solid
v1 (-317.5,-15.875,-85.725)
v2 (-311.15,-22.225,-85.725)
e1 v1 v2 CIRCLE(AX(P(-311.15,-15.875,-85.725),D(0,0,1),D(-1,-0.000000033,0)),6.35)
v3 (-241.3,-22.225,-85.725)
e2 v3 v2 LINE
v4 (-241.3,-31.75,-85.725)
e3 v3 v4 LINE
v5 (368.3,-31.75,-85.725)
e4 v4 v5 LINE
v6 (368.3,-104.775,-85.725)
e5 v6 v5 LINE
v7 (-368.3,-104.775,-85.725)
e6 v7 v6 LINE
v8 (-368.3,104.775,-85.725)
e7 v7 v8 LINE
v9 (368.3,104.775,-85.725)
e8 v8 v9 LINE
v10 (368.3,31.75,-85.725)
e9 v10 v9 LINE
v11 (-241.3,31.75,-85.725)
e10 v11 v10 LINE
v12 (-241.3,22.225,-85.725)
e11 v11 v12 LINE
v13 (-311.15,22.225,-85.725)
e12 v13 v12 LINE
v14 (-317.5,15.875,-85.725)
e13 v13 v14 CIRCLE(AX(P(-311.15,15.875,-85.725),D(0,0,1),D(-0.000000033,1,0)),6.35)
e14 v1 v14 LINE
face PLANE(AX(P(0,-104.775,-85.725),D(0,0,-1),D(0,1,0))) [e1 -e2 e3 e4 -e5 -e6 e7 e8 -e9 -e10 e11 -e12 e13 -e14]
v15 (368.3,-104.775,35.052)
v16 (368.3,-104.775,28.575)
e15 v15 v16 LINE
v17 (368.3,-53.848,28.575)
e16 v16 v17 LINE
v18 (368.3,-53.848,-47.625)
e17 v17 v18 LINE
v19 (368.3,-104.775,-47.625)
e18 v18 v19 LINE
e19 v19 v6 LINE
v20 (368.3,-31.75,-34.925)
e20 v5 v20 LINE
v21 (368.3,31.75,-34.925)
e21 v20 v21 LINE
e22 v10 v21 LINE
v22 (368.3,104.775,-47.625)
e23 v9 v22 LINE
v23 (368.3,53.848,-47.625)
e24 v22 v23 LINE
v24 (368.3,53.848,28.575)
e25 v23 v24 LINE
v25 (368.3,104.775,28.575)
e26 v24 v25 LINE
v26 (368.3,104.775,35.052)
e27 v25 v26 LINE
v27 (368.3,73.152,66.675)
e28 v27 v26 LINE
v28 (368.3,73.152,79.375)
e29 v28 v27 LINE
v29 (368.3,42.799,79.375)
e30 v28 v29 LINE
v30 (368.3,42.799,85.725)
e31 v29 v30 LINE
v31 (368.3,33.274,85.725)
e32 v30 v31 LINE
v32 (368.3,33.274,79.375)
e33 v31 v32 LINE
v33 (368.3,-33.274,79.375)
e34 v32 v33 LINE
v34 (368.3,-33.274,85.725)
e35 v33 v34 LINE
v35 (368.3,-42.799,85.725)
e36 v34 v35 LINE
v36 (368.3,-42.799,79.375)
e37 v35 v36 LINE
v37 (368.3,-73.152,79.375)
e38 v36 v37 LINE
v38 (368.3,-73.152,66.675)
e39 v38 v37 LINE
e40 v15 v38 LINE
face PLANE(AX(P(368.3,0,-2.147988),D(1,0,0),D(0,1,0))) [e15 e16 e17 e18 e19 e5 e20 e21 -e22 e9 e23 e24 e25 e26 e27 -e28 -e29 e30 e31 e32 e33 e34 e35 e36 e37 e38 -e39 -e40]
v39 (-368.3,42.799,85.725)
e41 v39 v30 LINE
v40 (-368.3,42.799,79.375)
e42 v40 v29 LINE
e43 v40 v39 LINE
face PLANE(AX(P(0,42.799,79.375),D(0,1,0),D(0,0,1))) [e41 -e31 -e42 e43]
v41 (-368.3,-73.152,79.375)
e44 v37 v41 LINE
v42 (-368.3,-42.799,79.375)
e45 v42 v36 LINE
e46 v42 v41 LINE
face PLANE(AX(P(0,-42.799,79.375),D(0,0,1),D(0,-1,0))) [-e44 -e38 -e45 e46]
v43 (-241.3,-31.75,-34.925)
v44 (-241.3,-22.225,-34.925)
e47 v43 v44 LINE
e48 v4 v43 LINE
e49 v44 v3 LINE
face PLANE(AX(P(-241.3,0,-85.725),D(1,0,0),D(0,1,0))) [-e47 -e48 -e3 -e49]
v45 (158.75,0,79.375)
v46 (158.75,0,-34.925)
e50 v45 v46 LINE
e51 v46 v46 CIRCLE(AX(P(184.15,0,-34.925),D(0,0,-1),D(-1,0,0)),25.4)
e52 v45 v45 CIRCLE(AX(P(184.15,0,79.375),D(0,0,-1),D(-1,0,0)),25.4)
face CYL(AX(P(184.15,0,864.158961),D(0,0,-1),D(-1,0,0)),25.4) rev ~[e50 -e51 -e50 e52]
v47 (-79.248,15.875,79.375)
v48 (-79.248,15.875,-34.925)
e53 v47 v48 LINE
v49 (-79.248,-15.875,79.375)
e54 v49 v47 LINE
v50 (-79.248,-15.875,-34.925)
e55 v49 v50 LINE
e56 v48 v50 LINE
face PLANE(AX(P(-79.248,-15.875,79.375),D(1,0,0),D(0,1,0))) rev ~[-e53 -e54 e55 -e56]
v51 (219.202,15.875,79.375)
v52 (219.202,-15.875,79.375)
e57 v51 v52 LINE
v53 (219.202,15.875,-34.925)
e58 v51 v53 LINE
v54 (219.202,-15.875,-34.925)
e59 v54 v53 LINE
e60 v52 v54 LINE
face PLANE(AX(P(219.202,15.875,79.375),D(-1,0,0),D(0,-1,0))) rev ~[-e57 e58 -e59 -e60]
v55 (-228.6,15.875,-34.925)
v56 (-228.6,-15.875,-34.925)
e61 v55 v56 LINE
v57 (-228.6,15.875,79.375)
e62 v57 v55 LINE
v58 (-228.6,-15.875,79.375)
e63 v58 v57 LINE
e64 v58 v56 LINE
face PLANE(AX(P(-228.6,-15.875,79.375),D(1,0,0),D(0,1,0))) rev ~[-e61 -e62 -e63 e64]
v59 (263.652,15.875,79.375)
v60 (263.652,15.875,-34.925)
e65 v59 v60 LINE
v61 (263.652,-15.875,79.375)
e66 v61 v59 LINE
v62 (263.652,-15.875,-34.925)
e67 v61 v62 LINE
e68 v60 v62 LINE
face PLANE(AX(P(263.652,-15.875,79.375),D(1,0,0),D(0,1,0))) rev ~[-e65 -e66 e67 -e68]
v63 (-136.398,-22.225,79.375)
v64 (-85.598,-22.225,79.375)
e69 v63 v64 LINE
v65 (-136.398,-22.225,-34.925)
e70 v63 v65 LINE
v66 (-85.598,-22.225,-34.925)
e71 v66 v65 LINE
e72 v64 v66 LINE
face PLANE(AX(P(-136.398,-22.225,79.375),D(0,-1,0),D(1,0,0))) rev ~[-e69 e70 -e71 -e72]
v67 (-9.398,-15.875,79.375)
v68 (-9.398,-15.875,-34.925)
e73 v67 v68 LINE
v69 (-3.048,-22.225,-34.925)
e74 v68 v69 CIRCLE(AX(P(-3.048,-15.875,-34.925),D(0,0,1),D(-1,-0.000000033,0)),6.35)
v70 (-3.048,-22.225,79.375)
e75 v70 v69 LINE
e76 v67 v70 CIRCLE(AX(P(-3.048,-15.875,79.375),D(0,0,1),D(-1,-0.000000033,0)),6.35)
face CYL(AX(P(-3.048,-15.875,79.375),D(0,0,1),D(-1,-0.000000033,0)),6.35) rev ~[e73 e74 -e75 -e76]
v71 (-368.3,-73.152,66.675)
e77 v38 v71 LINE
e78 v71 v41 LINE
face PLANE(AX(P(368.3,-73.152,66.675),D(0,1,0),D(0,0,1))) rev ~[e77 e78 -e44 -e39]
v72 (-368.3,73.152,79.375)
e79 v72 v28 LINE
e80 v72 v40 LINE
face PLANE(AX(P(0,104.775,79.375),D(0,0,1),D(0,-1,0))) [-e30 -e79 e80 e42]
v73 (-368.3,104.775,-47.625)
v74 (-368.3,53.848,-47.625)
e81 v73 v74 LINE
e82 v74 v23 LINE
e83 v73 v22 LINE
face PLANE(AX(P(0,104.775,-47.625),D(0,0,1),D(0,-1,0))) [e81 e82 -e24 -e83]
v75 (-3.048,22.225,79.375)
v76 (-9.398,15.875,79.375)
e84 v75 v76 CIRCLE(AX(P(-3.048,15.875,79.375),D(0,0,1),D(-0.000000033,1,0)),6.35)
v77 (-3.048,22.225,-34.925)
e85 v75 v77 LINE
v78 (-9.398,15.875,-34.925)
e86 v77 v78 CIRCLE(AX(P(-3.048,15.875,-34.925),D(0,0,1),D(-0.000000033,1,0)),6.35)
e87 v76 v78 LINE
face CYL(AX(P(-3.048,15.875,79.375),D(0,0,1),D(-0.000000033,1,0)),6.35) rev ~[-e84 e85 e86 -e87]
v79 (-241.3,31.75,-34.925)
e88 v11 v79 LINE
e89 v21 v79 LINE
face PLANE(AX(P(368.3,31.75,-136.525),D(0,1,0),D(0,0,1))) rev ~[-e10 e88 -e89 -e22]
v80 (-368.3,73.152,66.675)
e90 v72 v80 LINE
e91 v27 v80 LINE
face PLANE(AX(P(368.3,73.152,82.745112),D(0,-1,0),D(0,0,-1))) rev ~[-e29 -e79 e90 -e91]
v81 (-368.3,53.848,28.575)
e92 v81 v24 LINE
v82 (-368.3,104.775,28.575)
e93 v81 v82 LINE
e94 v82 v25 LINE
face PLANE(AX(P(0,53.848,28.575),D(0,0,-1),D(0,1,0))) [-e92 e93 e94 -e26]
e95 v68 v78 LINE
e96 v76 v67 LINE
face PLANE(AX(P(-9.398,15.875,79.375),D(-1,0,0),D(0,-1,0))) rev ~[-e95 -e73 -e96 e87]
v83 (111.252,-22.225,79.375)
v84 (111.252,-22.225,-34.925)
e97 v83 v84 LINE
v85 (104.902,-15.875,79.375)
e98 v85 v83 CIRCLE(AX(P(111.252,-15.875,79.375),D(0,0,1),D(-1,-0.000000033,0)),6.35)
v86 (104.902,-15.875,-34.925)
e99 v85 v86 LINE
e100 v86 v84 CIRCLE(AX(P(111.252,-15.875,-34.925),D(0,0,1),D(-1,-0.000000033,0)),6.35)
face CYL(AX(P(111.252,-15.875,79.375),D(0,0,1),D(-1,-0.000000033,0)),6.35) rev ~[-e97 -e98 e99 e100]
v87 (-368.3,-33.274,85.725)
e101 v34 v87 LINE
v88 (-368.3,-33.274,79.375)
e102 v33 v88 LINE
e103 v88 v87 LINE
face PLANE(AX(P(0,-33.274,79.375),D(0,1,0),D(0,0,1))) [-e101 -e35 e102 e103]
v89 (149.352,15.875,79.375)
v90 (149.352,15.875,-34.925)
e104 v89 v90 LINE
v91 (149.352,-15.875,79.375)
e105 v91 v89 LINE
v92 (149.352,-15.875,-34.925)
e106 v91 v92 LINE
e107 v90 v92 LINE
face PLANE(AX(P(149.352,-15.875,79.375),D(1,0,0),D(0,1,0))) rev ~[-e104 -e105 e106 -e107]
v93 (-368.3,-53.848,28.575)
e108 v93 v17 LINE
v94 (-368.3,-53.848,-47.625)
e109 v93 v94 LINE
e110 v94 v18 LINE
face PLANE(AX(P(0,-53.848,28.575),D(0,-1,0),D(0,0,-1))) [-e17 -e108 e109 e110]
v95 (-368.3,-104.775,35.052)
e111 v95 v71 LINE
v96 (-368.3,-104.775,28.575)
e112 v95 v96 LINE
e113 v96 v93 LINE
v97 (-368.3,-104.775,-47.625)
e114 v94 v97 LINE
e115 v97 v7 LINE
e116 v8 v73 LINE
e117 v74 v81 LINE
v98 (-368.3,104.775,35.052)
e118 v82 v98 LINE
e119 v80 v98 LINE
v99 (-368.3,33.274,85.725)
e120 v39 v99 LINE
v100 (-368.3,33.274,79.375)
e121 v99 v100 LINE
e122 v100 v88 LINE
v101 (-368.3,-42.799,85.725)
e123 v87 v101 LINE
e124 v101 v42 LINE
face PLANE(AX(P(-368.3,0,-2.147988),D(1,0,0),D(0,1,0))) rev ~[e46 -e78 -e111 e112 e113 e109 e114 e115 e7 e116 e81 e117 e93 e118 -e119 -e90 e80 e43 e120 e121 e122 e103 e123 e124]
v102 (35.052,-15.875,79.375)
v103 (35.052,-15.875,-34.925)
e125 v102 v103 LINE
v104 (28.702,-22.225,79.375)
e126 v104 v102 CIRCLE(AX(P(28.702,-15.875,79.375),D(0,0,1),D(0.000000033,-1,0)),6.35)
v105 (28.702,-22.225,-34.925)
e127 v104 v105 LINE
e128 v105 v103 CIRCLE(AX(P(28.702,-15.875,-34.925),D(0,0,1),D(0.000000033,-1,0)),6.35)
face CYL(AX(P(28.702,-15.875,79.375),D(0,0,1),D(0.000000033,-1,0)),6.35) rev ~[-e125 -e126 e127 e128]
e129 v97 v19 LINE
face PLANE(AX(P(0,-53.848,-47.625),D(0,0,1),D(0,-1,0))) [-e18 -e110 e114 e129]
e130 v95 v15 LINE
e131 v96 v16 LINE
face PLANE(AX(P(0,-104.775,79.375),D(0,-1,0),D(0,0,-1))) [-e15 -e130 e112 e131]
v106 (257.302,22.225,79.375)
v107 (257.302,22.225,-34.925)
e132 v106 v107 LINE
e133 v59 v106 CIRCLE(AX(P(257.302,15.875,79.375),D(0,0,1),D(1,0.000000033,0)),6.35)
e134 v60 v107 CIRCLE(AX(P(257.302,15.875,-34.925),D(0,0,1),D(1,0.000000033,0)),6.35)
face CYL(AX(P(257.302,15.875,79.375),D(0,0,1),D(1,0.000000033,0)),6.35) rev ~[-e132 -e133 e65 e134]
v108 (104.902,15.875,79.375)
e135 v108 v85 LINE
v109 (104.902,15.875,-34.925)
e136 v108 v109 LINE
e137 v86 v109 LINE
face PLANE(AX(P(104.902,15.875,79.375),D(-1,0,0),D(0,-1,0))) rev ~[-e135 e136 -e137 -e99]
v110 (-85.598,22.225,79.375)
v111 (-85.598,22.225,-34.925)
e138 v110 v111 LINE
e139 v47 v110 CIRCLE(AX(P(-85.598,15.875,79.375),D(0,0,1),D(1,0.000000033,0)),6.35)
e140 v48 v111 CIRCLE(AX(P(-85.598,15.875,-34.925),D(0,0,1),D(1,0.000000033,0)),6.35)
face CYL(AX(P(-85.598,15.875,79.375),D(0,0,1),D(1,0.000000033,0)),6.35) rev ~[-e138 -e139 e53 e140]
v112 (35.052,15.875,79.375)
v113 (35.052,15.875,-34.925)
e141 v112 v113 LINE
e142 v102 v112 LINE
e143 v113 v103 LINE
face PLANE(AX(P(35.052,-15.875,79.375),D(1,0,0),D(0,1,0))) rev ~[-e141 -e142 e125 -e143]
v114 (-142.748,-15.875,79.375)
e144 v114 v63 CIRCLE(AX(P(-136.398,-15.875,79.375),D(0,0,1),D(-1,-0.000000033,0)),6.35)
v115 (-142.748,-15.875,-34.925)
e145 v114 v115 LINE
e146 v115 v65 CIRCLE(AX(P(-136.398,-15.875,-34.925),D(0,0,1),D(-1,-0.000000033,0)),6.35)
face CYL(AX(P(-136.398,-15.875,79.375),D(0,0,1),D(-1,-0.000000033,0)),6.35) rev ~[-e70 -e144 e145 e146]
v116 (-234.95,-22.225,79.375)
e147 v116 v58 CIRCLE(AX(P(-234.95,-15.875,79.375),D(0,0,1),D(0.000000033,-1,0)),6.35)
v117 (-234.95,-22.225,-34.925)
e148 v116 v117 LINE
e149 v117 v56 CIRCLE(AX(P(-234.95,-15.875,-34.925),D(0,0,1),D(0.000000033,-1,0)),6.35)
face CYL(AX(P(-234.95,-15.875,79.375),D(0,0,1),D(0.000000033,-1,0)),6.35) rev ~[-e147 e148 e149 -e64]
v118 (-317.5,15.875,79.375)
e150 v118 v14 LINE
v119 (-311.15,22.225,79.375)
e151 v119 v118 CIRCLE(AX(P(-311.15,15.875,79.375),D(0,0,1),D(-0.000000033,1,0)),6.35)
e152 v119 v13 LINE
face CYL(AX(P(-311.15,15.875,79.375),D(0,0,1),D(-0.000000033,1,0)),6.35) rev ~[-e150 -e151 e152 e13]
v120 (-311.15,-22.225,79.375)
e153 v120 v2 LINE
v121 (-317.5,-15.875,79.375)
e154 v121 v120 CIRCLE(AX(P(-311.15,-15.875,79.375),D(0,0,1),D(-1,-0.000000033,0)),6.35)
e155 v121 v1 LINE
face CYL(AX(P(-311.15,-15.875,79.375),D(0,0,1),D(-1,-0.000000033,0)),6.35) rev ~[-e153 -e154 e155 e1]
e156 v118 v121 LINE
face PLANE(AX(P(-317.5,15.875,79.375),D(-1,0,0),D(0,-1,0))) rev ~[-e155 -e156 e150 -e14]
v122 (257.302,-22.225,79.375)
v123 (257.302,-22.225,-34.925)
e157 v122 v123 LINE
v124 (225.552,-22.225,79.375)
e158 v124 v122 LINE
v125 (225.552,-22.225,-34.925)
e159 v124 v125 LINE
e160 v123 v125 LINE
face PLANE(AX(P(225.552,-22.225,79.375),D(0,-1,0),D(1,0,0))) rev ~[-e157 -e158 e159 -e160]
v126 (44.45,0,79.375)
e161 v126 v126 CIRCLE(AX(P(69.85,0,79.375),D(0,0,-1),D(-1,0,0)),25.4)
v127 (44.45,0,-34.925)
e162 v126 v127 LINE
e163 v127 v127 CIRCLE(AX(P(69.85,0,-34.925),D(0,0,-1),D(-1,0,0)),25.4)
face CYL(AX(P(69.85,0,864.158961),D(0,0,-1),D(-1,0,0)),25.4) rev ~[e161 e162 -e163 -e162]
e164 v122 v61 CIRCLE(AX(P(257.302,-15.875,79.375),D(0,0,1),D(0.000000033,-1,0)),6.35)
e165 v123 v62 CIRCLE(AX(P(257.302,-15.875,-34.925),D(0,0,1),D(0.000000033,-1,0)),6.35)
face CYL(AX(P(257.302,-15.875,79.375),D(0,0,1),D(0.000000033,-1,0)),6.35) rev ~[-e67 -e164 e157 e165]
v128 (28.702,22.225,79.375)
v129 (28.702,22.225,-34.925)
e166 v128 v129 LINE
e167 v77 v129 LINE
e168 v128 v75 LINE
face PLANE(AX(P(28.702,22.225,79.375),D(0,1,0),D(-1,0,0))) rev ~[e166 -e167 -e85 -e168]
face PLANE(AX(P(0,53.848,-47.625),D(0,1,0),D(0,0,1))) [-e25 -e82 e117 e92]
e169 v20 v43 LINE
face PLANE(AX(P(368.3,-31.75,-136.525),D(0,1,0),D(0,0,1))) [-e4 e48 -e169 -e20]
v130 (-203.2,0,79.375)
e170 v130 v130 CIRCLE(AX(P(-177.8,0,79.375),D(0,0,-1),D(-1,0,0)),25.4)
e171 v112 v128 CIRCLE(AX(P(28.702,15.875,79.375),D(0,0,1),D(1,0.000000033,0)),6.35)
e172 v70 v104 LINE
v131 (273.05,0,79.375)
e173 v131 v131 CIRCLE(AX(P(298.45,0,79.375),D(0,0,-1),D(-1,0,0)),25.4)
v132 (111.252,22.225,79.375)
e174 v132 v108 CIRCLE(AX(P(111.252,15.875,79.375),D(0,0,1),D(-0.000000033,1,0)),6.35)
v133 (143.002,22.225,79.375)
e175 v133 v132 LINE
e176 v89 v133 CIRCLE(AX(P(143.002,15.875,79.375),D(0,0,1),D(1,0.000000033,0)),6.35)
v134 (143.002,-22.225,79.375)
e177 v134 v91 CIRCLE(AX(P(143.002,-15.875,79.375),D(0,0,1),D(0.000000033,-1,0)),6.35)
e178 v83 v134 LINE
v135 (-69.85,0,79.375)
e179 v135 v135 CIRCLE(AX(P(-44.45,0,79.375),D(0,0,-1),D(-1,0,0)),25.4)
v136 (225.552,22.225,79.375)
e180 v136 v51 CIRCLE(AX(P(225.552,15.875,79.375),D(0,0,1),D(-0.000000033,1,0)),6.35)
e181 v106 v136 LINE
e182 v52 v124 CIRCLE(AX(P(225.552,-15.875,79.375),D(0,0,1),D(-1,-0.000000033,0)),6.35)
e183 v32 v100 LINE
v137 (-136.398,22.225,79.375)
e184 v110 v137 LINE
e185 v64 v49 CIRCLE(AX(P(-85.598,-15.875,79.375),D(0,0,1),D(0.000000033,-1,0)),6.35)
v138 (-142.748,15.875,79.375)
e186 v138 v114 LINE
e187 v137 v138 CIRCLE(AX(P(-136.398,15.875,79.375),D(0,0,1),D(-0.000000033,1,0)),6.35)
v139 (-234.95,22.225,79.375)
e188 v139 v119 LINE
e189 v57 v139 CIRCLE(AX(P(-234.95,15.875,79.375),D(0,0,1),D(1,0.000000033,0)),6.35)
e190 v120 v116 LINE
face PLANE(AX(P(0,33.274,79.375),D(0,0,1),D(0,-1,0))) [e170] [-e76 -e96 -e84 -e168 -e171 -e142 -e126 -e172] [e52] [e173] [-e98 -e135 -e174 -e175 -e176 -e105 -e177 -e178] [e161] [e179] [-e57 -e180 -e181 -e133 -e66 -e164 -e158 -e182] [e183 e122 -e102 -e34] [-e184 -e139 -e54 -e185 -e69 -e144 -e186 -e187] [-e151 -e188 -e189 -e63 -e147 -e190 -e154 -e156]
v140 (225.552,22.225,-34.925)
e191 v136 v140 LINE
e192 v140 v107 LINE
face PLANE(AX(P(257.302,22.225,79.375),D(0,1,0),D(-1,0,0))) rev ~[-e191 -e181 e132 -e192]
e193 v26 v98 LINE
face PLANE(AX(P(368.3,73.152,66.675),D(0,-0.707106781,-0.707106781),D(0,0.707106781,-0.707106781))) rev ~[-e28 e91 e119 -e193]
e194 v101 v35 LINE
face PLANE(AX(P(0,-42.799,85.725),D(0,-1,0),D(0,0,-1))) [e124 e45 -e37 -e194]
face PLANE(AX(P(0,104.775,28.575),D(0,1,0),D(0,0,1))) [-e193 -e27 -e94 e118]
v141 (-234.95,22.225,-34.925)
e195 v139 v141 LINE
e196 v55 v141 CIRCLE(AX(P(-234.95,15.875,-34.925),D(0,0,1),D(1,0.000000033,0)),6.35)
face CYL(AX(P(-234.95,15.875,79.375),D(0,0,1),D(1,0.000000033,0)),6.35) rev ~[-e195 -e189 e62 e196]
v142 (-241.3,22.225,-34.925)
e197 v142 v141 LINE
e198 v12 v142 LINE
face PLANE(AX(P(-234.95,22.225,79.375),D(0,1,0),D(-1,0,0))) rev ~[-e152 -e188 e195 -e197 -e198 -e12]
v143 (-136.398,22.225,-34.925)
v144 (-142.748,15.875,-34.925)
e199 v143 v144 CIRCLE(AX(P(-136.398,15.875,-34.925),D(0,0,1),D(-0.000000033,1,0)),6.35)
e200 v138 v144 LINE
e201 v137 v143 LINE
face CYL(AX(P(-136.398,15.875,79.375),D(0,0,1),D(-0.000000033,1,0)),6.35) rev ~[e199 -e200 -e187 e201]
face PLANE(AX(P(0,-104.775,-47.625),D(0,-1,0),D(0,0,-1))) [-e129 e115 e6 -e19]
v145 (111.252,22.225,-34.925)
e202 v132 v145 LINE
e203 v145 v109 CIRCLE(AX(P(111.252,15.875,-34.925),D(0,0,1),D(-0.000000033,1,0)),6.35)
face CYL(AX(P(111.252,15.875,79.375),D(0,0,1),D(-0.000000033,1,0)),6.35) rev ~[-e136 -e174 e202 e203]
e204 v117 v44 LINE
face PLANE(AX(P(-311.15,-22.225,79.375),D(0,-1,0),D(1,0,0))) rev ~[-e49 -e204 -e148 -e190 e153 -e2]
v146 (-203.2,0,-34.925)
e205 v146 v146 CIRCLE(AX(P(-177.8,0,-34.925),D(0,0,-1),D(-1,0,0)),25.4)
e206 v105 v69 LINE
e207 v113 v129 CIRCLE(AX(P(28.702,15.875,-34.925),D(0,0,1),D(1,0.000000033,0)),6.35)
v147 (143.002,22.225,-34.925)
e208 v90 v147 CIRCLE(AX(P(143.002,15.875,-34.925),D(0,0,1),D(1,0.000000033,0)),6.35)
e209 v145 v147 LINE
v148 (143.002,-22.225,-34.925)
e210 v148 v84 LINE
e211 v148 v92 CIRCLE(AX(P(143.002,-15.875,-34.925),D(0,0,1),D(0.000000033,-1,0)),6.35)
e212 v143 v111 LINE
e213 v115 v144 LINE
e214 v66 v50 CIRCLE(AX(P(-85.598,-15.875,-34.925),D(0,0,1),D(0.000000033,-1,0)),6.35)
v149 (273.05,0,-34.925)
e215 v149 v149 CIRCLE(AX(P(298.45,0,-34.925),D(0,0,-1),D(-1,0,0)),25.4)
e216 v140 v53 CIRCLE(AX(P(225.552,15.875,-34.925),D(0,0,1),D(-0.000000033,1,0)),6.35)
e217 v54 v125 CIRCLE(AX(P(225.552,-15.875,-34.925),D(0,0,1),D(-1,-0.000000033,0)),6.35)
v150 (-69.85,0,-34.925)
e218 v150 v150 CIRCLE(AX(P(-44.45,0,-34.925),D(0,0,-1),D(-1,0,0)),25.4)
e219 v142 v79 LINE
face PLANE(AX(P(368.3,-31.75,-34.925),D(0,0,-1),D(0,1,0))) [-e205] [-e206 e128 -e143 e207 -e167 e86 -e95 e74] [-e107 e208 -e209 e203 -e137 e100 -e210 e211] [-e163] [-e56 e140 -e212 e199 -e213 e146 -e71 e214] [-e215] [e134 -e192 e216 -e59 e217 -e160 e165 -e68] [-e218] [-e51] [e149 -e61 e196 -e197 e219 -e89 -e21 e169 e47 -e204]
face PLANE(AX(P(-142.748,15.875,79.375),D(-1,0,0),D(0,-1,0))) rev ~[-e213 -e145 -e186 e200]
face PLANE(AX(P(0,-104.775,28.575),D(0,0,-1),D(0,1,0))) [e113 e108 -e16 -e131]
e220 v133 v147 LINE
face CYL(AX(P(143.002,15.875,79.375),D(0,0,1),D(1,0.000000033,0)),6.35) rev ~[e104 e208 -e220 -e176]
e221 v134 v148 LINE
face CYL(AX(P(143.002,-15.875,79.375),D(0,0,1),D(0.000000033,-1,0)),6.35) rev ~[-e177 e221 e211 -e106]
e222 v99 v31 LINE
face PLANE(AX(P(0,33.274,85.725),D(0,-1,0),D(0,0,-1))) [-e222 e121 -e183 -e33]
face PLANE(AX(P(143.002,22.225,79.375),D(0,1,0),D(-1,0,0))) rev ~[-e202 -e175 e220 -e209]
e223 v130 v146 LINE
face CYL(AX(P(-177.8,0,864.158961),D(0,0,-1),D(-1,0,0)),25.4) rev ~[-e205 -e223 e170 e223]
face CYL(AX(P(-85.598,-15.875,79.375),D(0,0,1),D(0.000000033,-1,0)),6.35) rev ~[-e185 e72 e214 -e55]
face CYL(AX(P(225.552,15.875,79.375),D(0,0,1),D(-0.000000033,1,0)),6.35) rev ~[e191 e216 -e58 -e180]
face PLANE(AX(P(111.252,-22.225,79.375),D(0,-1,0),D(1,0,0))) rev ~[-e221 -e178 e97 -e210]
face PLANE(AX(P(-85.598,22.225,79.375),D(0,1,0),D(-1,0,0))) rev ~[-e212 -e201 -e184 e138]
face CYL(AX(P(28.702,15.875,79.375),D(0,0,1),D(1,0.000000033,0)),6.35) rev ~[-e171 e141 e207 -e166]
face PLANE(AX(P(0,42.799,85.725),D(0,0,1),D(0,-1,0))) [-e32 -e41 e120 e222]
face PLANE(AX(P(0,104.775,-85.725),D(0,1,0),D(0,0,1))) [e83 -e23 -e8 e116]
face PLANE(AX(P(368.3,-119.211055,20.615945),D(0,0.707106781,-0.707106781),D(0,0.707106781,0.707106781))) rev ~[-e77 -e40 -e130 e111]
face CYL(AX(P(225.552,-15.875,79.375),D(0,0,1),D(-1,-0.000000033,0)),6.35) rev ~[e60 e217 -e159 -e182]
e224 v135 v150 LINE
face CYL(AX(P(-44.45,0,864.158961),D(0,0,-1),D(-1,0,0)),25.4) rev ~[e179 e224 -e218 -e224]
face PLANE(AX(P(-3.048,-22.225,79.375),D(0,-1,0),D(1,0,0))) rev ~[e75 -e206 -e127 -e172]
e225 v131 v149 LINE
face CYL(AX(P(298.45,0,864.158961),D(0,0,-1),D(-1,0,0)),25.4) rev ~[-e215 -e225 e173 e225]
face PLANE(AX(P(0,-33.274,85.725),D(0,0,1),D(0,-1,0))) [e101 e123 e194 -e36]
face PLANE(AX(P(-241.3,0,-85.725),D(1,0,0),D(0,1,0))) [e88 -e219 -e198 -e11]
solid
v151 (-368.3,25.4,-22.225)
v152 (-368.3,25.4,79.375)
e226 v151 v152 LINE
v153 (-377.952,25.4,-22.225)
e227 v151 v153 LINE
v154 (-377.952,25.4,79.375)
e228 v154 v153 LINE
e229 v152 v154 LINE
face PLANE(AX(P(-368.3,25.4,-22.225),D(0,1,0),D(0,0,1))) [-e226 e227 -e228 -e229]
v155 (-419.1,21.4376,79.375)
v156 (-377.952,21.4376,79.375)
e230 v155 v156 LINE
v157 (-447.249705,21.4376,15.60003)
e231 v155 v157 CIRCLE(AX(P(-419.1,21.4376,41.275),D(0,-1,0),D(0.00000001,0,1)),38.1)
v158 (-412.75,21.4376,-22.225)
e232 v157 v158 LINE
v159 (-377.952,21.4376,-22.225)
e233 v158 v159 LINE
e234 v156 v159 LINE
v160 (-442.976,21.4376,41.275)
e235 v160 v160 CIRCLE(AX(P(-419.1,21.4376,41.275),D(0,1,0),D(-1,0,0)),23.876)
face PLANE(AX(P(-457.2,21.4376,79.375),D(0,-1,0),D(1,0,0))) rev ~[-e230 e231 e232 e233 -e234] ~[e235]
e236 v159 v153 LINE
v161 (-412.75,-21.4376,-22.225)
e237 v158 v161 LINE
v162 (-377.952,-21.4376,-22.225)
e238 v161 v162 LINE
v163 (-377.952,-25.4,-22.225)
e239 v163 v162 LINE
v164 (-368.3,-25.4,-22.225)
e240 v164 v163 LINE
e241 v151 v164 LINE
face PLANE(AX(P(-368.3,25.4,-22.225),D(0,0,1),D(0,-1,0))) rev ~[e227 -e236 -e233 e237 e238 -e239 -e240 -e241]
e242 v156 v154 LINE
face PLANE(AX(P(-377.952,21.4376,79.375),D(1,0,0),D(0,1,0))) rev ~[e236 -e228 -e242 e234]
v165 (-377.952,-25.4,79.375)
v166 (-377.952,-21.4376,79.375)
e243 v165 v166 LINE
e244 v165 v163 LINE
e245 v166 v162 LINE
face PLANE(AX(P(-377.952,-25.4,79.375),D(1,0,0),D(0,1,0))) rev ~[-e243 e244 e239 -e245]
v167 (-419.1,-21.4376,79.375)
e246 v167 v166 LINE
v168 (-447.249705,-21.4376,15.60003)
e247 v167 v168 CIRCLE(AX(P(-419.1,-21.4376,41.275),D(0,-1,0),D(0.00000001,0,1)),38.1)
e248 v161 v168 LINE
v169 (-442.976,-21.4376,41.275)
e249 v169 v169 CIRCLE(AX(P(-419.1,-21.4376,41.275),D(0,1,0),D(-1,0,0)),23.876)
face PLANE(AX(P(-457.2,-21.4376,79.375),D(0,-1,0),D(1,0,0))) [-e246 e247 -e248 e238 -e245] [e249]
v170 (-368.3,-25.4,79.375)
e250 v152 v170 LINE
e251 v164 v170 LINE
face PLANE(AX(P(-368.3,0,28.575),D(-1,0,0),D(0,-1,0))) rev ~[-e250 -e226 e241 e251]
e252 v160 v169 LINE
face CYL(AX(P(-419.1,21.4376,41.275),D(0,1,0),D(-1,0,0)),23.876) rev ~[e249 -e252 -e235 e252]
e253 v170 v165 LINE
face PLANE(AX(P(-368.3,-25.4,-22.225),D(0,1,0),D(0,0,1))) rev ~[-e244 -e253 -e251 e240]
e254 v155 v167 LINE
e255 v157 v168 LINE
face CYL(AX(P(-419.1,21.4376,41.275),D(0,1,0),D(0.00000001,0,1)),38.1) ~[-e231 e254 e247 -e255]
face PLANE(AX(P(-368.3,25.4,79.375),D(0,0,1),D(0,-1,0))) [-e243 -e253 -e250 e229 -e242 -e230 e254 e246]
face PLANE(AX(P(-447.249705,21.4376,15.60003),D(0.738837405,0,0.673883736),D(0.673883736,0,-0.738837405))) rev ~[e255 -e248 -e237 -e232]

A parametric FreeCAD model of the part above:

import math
import FreeCAD as App
import Part
import Sketcher
Q = App.Units.Quantity

doc = App.newDocument("Part")
params = doc.addObject("Spreadsheet::Sheet", "Params")
for row, (alias, value) in enumerate([
    ("sketch1_height", "2 in"),
    ("sketch1_height2", "3 in"),
    ("sketch1_height3", "1.5 in"),
    ("sketch1_width", "2.44 in"),
    ("sketch1_width2", "8.25 in"),
    ("pad1_length", "29 in"),
    ("sketch2_height", "4 in"),
    ("sketch2_width", "2.5 in"),
    ("pocket1_length", "24 in"),
    ("sketch3_diameter", "2 in"),
    ("hole_diameter", "2 in"),
    ("sketch4_width", "2 in"),
    ("sketch4_width2", "3 in"),
    ("sketch4_radius", "0.25 in"),
    ("sketch4_width3", "1.25 in"),
    ("sketch6_width", "2 in"),
    ("sketch6_height", "4 in"),
    ("pad2_length", "3.5 in"),
    ("sketch7_width", "3.12 in"),
    ("sketch7_height", "0.156 in"),
    ("sketch8_diameter", "1.88 in"),
    ("sketch9_radius", "1.5 in"),
], start=1):
    params.set(f"A{row}", alias)
    params.set(f"B{row}", "=" + value)
    params.setAlias(f"B{row}", alias)

body = doc.addObject("PartDesign::Body", "Body")

sketch1 = body.newObject("Sketcher::SketchObject", "Sketch")
sketch1.AttachmentSupport = (doc.getObject("YZ_Plane"), [""])
sketch1.MapMode = "FlatFace"
sketch1.addGeometry([
    Part.LineSegment(App.Vector(-33, 86, 0), App.Vector(-43, 86, 0)),
    Part.LineSegment(App.Vector(-43, 86, 0), App.Vector(-43, 79, 0)),
    Part.LineSegment(App.Vector(-43, 79, 0), App.Vector(-105, 79, 0)),
    Part.LineSegment(App.Vector(-105, 79, 0), App.Vector(-105, 29, 0)),
    Part.LineSegment(App.Vector(-105, 29, 0), App.Vector(-54, 29, 0)),
    Part.LineSegment(App.Vector(-54, 29, 0), App.Vector(-54, -48, 0)),
    Part.LineSegment(App.Vector(-54, -48, 0), App.Vector(-105, -48, 0)),
    Part.LineSegment(App.Vector(-105, -48, 0), App.Vector(-105, -86, 0)),
    Part.LineSegment(App.Vector(-105, -86, 0), App.Vector(105, -86, 0)),
    Part.LineSegment(App.Vector(105, -86, 0), App.Vector(105, -48, 0)),
    Part.LineSegment(App.Vector(105, -48, 0), App.Vector(54, -48, 0)),
    Part.LineSegment(App.Vector(54, -48, 0), App.Vector(54, 29, 0)),
    Part.LineSegment(App.Vector(54, 29, 0), App.Vector(105, 29, 0)),
    Part.LineSegment(App.Vector(105, 29, 0), App.Vector(105, 79, 0)),
    Part.LineSegment(App.Vector(105, 79, 0), App.Vector(43, 79, 0)),
    Part.LineSegment(App.Vector(43, 79, 0), App.Vector(43, 86, 0)),
    Part.LineSegment(App.Vector(43, 86, 0), App.Vector(33, 86, 0)),
    Part.LineSegment(App.Vector(33, 86, 0), App.Vector(33, 79, 0)),
    Part.LineSegment(App.Vector(33, 79, 0), App.Vector(-33, 79, 0)),
    Part.LineSegment(App.Vector(-33, 79, 0), App.Vector(-33, 86, 0)),
], False)
sketch1.addConstraint([
    Sketcher.Constraint("Coincident", 0, 2, 1, 1),
    Sketcher.Constraint("Coincident", 1, 2, 2, 1),
    Sketcher.Constraint("Coincident", 2, 2, 3, 1),
    Sketcher.Constraint("Coincident", 3, 2, 4, 1),
    Sketcher.Constraint("Coincident", 4, 2, 5, 1),
    Sketcher.Constraint("Coincident", 5, 2, 6, 1),
    Sketcher.Constraint("Coincident", 6, 2, 7, 1),
    Sketcher.Constraint("Coincident", 7, 2, 8, 1),
    Sketcher.Constraint("Coincident", 8, 2, 9, 1),
    Sketcher.Constraint("Coincident", 9, 2, 10, 1),
    Sketcher.Constraint("Coincident", 10, 2, 11, 1),
    Sketcher.Constraint("Coincident", 11, 2, 12, 1),
    Sketcher.Constraint("Coincident", 12, 2, 13, 1),
    Sketcher.Constraint("Coincident", 13, 2, 14, 1),
    Sketcher.Constraint("Coincident", 14, 2, 15, 1),
    Sketcher.Constraint("Coincident", 15, 2, 16, 1),
    Sketcher.Constraint("Coincident", 16, 2, 17, 1),
    Sketcher.Constraint("Coincident", 17, 2, 18, 1),
    Sketcher.Constraint("Coincident", 18, 2, 19, 1),
    Sketcher.Constraint("Coincident", 19, 2, 0, 1),
    Sketcher.Constraint("Horizontal", 0),
    Sketcher.Constraint("Vertical", 1),
    Sketcher.Constraint("Horizontal", 2),
    Sketcher.Constraint("Vertical", 3),
    Sketcher.Constraint("Horizontal", 4),
    Sketcher.Constraint("Vertical", 5),
    Sketcher.Constraint("Horizontal", 6),
    Sketcher.Constraint("Vertical", 7),
    Sketcher.Constraint("Horizontal", 8),
    Sketcher.Constraint("Vertical", 9),
    Sketcher.Constraint("Horizontal", 10),
    Sketcher.Constraint("Vertical", 11),
    Sketcher.Constraint("Horizontal", 12),
    Sketcher.Constraint("Vertical", 13),
    Sketcher.Constraint("Horizontal", 14),
    Sketcher.Constraint("Vertical", 15),
    Sketcher.Constraint("Horizontal", 16),
    Sketcher.Constraint("Vertical", 17),
    Sketcher.Constraint("Horizontal", 18),
    Sketcher.Constraint("Vertical", 19),
    Sketcher.Constraint("Symmetric", 6, 2, 9, 2, -2),
    Sketcher.Constraint("Symmetric", 4, 2, 11, 2, -2),
    Sketcher.Constraint("Symmetric", 2, 2, 13, 2, -2),
    Sketcher.Constraint("Symmetric", 0, 2, 15, 2, -2),
    Sketcher.Constraint("Horizontal", 14, 2, 17, 2),
    Sketcher.Constraint("Vertical", 3, 2, 6, 2),
    Sketcher.Constraint("Equal", 0, 16),
    Sketcher.Constraint("DistanceY", 3, 2, 3, 1, Q("2 in")),
    Sketcher.Constraint("DistanceY", 5, 2, 5, 1, Q("3 in")),
    Sketcher.Constraint("DistanceY", 7, 2, 7, 1, Q("1.5 in")),
    Sketcher.Constraint("DistanceX", 2, 2, 2, 1, Q("2.44 in")),
    Sketcher.Constraint("DistanceX", 8, 1, 8, 2, Q("8.25 in")),
    Sketcher.Constraint("DistanceX", 18, 2, 18, 1, Q("2.62 in")),
    Sketcher.Constraint("DistanceY", 1, 2, 1, 1, Q("0.25 in")),
    Sketcher.Constraint("DistanceX", 4, 1, 4, 2, Q("2.005 in")),
    Sketcher.Constraint("DistanceY", -1, 1, 0, 2, Q("3.375 in")),
])
sketch1.setExpression("Constraints[47]", "Params.sketch1_height")
sketch1.setExpression("Constraints[48]", "Params.sketch1_height2")
sketch1.setExpression("Constraints[49]", "Params.sketch1_height3")
sketch1.setExpression("Constraints[50]", "Params.sketch1_width")
sketch1.setExpression("Constraints[51]", "Params.sketch1_width2")
pad1 = body.newObject("PartDesign::Pad", "Pad")
pad1.Profile = sketch1
pad1.setExpression("Length", "Params.pad1_length")
pad1.Midplane = True

sketch2 = body.newObject("Sketcher::SketchObject", "Sketch001")
sketch2.AttachmentSupport = (doc.getObject("YZ_Plane"), [""])
sketch2.MapMode = "FlatFace"
sketch2.AttachmentOffset = App.Placement(App.Vector(0, 0, 14.5 * 25.4), App.Rotation())
sketch2.addGeometry([
    Part.LineSegment(App.Vector(-32, -35, 0), App.Vector(-32, -137, 0)),
    Part.LineSegment(App.Vector(-32, -137, 0), App.Vector(32, -137, 0)),
    Part.LineSegment(App.Vector(32, -137, 0), App.Vector(32, -35, 0)),
    Part.LineSegment(App.Vector(32, -35, 0), App.Vector(-32, -35, 0)),
], False)
sketch2.addConstraint([
    Sketcher.Constraint("Coincident", 0, 2, 1, 1),
    Sketcher.Constraint("Coincident", 1, 2, 2, 1),
    Sketcher.Constraint("Coincident", 2, 2, 3, 1),
    Sketcher.Constraint("Coincident", 3, 2, 0, 1),
    Sketcher.Constraint("Vertical", 0),
    Sketcher.Constraint("Horizontal", 1),
    Sketcher.Constraint("Vertical", 2),
    Sketcher.Constraint("Horizontal", 3),
    Sketcher.Constraint("DistanceY", 0, 2, 0, 1, Q("4 in")),
    Sketcher.Constraint("DistanceX", 1, 1, 1, 2, Q("2.5 in")),
    Sketcher.Constraint("DistanceX", 0, 2, -1, 1, Q("1.25 in")),
    Sketcher.Constraint("DistanceY", 0, 2, -1, 1, Q("5.375 in")),
])
sketch2.setExpression("Constraints[8]", "Params.sketch2_height")
sketch2.setExpression("Constraints[9]", "Params.sketch2_width")
pocket1 = body.newObject("PartDesign::Pocket", "Pocket")
pocket1.Profile = sketch2
pocket1.setExpression("Length", "Params.pocket1_length")

sketch3 = body.newObject("Sketcher::SketchObject", "Sketch002")
sketch3.AttachmentSupport = (doc.getObject("XY_Plane"), [""])
sketch3.MapMode = "FlatFace"
sketch3.AttachmentOffset = App.Placement(App.Vector(0, 0, 3.125 * 25.4), App.Rotation())
sketch3.addGeometry([
    Part.Circle(App.Vector(-178, 0, 0), App.Vector(0, 0, 1), 25),
    Part.Circle(App.Vector(-44, 0, 0), App.Vector(0, 0, 1), 25),
    Part.Circle(App.Vector(70, 0, 0), App.Vector(0, 0, 1), 25),
    Part.Circle(App.Vector(184, 0, 0), App.Vector(0, 0, 1), 25),
    Part.Circle(App.Vector(298, 0, 0), App.Vector(0, 0, 1), 25),
], False)
sketch3.addConstraint([
    Sketcher.Constraint("Equal", 0, 1),
    Sketcher.Constraint("Equal", 1, 2),
    Sketcher.Constraint("Equal", 2, 3),
    Sketcher.Constraint("Equal", 3, 4),
    Sketcher.Constraint("PointOnObject", 0, 3, -1),
    Sketcher.Constraint("PointOnObject", 1, 3, -1),
    Sketcher.Constraint("PointOnObject", 2, 3, -1),
    Sketcher.Constraint("PointOnObject", 3, 3, -1),
    Sketcher.Constraint("PointOnObject", 4, 3, -1),
    Sketcher.Constraint("Diameter", 0, Q("2 in")),
    Sketcher.Constraint("DistanceX", 0, 3, -1, 1, Q("7 in")),
    Sketcher.Constraint("DistanceX", 1, 3, 3, 3, Q("9 in")),
    Sketcher.Constraint("DistanceX", 2, 3, 4, 3, Q("9 in")),
    Sketcher.Constraint("DistanceX", 1, 3, 2, 3, Q("4.5 in")),
    Sketcher.Constraint("DistanceX", 1, 3, -1, 1, Q("1.75 in")),
])
sketch3.setExpression("Constraints[9]", "Params.sketch3_diameter")
doc.recompute()
hole = body.newObject("PartDesign::Hole", "Hole")
hole.Profile = sketch3
hole.ThreadType = "None"
hole.setExpression("Diameter", "Params.hole_diameter")
hole.DepthType = "ThroughAll"

sketch4 = body.newObject("Sketcher::SketchObject", "Sketch003")
sketch4.AttachmentSupport = (doc.getObject("XY_Plane"), [""])
sketch4.MapMode = "FlatFace"
sketch4.AttachmentOffset = App.Placement(App.Vector(0, 0, 3.125 * 25.4), App.Rotation())
sketch4.addGeometry([
    Part.LineSegment(App.Vector(257, 22, 0), App.Vector(226, 22, 0)),
    Part.ArcOfCircle(Part.Circle(App.Vector(226, 16, 0), App.Vector(0, 0, 1), 6), math.radians(90), math.radians(180)),
    Part.LineSegment(App.Vector(219, 16, 0), App.Vector(219, -16, 0)),
    Part.ArcOfCircle(Part.Circle(App.Vector(226, -16, 0), App.Vector(0, 0, 1), 6), math.radians(-180), math.radians(-90)),
    Part.LineSegment(App.Vector(226, -22, 0), App.Vector(257, -22, 0)),
    Part.ArcOfCircle(Part.Circle(App.Vector(257, -16, 0), App.Vector(0, 0, 1), 6), math.radians(-90), math.radians(0)),
    Part.LineSegment(App.Vector(264, -16, 0), App.Vector(264, 16, 0)),
    Part.ArcOfCircle(Part.Circle(App.Vector(257, 16, 0), App.Vector(0, 0, 1), 6), math.radians(0), math.radians(90)),
    Part.LineSegment(App.Vector(149, -16, 0), App.Vector(149, 16, 0)),
    Part.ArcOfCircle(Part.Circle(App.Vector(143, 16, 0), App.Vector(0, 0, 1), 6), math.radians(0), math.radians(90)),
    Part.LineSegment(App.Vector(143, 22, 0), App.Vector(111, 22, 0)),
    Part.ArcOfCircle(Part.Circle(App.Vector(111, 16, 0), App.Vector(0, 0, 1), 6), math.radians(90), math.radians(180)),
    Part.LineSegment(App.Vector(105, 16, 0), App.Vector(105, -16, 0)),
    Part.ArcOfCircle(Part.Circle(App.Vector(111, -16, 0), App.Vector(0, 0, 1), 6), math.radians(-180), math.radians(-90)),
    Part.LineSegment(App.Vector(111, -22, 0), App.Vector(143, -22, 0)),
    Part.ArcOfCircle(Part.Circle(App.Vector(143, -16, 0), App.Vector(0, 0, 1), 6), math.radians(-90), math.radians(0)),
    Part.LineSegment(App.Vector(35, -16, 0), App.Vector(35, 16, 0)),
    Part.ArcOfCircle(Part.Circle(App.Vector(29, 16, 0), App.Vector(0, 0, 1), 6), math.radians(0), math.radians(90)),
    Part.LineSegment(App.Vector(29, 22, 0), App.Vector(-3, 22, 0)),
    Part.ArcOfCircle(Part.Circle(App.Vector(-3, 16, 0), App.Vector(0, 0, 1), 6), math.radians(90), math.radians(180)),
    Part.LineSegment(App.Vector(-9, 16, 0), App.Vector(-9, -16, 0)),
    Part.ArcOfCircle(Part.Circle(App.Vector(-3, -16, 0), App.Vector(0, 0, 1), 6), math.radians(-180), math.radians(-90)),
    Part.LineSegment(App.Vector(-3, -22, 0), App.Vector(29, -22, 0)),
    Part.ArcOfCircle(Part.Circle(App.Vector(29, -16, 0), App.Vector(0, 0, 1), 6), math.radians(-90), math.radians(0)),
    Part.LineSegment(App.Vector(-79, -16, 0), App.Vector(-79, 16, 0)),
    Part.ArcOfCircle(Part.Circle(App.Vector(-86, 16, 0), App.Vector(0, 0, 1), 6), math.radians(0), math.radians(90)),
    Part.LineSegment(App.Vector(-86, 22, 0), App.Vector(-136, 22, 0)),
    Part.ArcOfCircle(Part.Circle(App.Vector(-136, 16, 0), App.Vector(0, 0, 1), 6), math.radians(90), math.radians(180)),
    Part.LineSegment(App.Vector(-143, 16, 0), App.Vector(-143, -16, 0)),
    Part.ArcOfCircle(Part.Circle(App.Vector(-136, -16, 0), App.Vector(0, 0, 1), 6), math.radians(-180), math.radians(-90)),
    Part.LineSegment(App.Vector(-136, -22, 0), App.Vector(-86, -22, 0)),
    Part.ArcOfCircle(Part.Circle(App.Vector(-86, -16, 0), App.Vector(0, 0, 1), 6), math.radians(-90), math.radians(0)),
    Part.LineSegment(App.Vector(-229, -16, 0), App.Vector(-229, 16, 0)),
    Part.ArcOfCircle(Part.Circle(App.Vector(-235, 16, 0), App.Vector(0, 0, 1), 6), math.radians(0), math.radians(90)),
    Part.LineSegment(App.Vector(-235, 22, 0), App.Vector(-311, 22, 0)),
    Part.ArcOfCircle(Part.Circle(App.Vector(-311, 16, 0), App.Vector(0, 0, 1), 6), math.radians(90), math.radians(180)),
    Part.LineSegment(App.Vector(-318, 16, 0), App.Vector(-318, -16, 0)),
    Part.ArcOfCircle(Part.Circle(App.Vector(-311, -16, 0), App.Vector(0, 0, 1), 6), math.radians(-180), math.radians(-90)),
    Part.LineSegment(App.Vector(-311, -22, 0), App.Vector(-235, -22, 0)),
    Part.ArcOfCircle(Part.Circle(App.Vector(-235, -16, 0), App.Vector(0, 0, 1), 6), math.radians(-90), math.radians(0)),
], False)
sketch4.addConstraint([
    Sketcher.Constraint("Tangent", 0, 2, 1, 1),
    Sketcher.Constraint("Tangent", 1, 2, 2, 1),
    Sketcher.Constraint("Tangent", 2, 2, 3, 1),
    Sketcher.Constraint("Tangent", 3, 2, 4, 1),
    Sketcher.Constraint("Tangent", 4, 2, 5, 1),
    Sketcher.Constraint("Tangent", 5, 2, 6, 1),
    Sketcher.Constraint("Tangent", 6, 2, 7, 1),
    Sketcher.Constraint("Tangent", 7, 2, 0, 1),
    Sketcher.Constraint("Tangent", 8, 2, 9, 1),
    Sketcher.Constraint("Tangent", 9, 2, 10, 1),
    Sketcher.Constraint("Tangent", 10, 2, 11, 1),
    Sketcher.Constraint("Tangent", 11, 2, 12, 1),
    Sketcher.Constraint("Tangent", 12, 2, 13, 1),
    Sketcher.Constraint("Tangent", 13, 2, 14, 1),
    Sketcher.Constraint("Tangent", 14, 2, 15, 1),
    Sketcher.Constraint("Tangent", 15, 2, 8, 1),
    Sketcher.Constraint("Tangent", 16, 2, 17, 1),
    Sketcher.Constraint("Tangent", 17, 2, 18, 1),
    Sketcher.Constraint("Tangent", 18, 2, 19, 1),
    Sketcher.Constraint("Tangent", 19, 2, 20, 1),
    Sketcher.Constraint("Tangent", 20, 2, 21, 1),
    Sketcher.Constraint("Tangent", 21, 2, 22, 1),
    Sketcher.Constraint("Tangent", 22, 2, 23, 1),
    Sketcher.Constraint("Tangent", 23, 2, 16, 1),
    Sketcher.Constraint("Tangent", 24, 2, 25, 1),
    Sketcher.Constraint("Tangent", 25, 2, 26, 1),
    Sketcher.Constraint("Tangent", 26, 2, 27, 1),
    Sketcher.Constraint("Tangent", 27, 2, 28, 1),
    Sketcher.Constraint("Tangent", 28, 2, 29, 1),
    Sketcher.Constraint("Tangent", 29, 2, 30, 1),
    Sketcher.Constraint("Tangent", 30, 2, 31, 1),
    Sketcher.Constraint("Tangent", 31, 2, 24, 1),
    Sketcher.Constraint("Tangent", 32, 2, 33, 1),
    Sketcher.Constraint("Tangent", 33, 2, 34, 1),
    Sketcher.Constraint("Tangent", 34, 2, 35, 1),
    Sketcher.Constraint("Tangent", 35, 2, 36, 1),
    Sketcher.Constraint("Tangent", 36, 2, 37, 1),
    Sketcher.Constraint("Tangent", 37, 2, 38, 1),
    Sketcher.Constraint("Tangent", 38, 2, 39, 1),
    Sketcher.Constraint("Tangent", 39, 2, 32, 1),
    Sketcher.Constraint("Horizontal", 0),
    Sketcher.Constraint("Vertical", 2),
    Sketcher.Constraint("Horizontal", 4),
    Sketcher.Constraint("Vertical", 6),
    Sketcher.Constraint("Vertical", 8),
    Sketcher.Constraint("Horizontal", 10),
    Sketcher.Constraint("Vertical", 12),
    Sketcher.Constraint("Horizontal", 14),
    Sketcher.Constraint("Vertical", 16),
    Sketcher.Constraint("Horizontal", 18),
    Sketcher.Constraint("Vertical", 20),
    Sketcher.Constraint("Horizontal", 22),
    Sketcher.Constraint("Vertical", 24),
    Sketcher.Constraint("Horizontal", 26),
    Sketcher.Constraint("Vertical", 28),
    Sketcher.Constraint("Horizontal", 30),
    Sketcher.Constraint("Vertical", 32),
    Sketcher.Constraint("Horizontal", 34),
    Sketcher.Constraint("Vertical", 36),
    Sketcher.Constraint("Horizontal", 38),
    Sketcher.Constraint("Equal", 1, 3),
    Sketcher.Constraint("Equal", 3, 5),
    Sketcher.Constraint("Equal", 5, 7),
    Sketcher.Constraint("Equal", 7, 9),
    Sketcher.Constraint("Equal", 9, 11),
    Sketcher.Constraint("Equal", 11, 13),
    Sketcher.Constraint("Equal", 13, 15),
    Sketcher.Constraint("Equal", 15, 17),
    Sketcher.Constraint("Equal", 17, 19),
    Sketcher.Constraint("Equal", 19, 21),
    Sketcher.Constraint("Equal", 21, 23),
    Sketcher.Constraint("Equal", 23, 25),
    Sketcher.Constraint("Equal", 25, 27),
    Sketcher.Constraint("Equal", 27, 29),
    Sketcher.Constraint("Equal", 29, 31),
    Sketcher.Constraint("Equal", 31, 33),
    Sketcher.Constraint("Equal", 33, 35),
    Sketcher.Constraint("Equal", 35, 37),
    Sketcher.Constraint("Equal", 37, 39),
    Sketcher.Constraint("Horizontal", 7, 3, 9, 3),
    Sketcher.Constraint("Horizontal", 5, 3, 13, 3),
    Sketcher.Constraint("Horizontal", 11, 3, 17, 3),
    Sketcher.Constraint("Horizontal", 15, 3, 21, 3),
    Sketcher.Constraint("Horizontal", 19, 3, 25, 3),
    Sketcher.Constraint("Horizontal", 23, 3, 29, 3),
    Sketcher.Constraint("Horizontal", 27, 3, 33, 3),
    Sketcher.Constraint("Horizontal", 31, 3, 37, 3),
    Sketcher.Constraint("Equal", 4, 10),
    Sketcher.Constraint("Equal", 14, 18),
    Sketcher.Constraint("Equal", 22, 2),
    Sketcher.Constraint("DistanceX", 26, 2, 26, 1, Q("2 in")),
    Sketcher.Constraint("DistanceX", 34, 2, 34, 1, Q("3 in")),
    Sketcher.Constraint("Radius", 1, Q("0.25 in")),
    Sketcher.Constraint("DistanceX", 32, 2, -1, 1, Q("9 in")),
    Sketcher.Constraint("DistanceX", 0, 2, 0, 1, Q("1.25 in")),
    Sketcher.Constraint("DistanceX", 9, 3, 7, 3, Q("4.5 in")),
    Sketcher.Constraint("DistanceX", 17, 3, 9, 3, Q("4.5 in")),
    Sketcher.Constraint("DistanceX", 25, 3, 17, 3, Q("4.5 in")),
    Sketcher.Constraint("DistanceX", -1, 1, 1, 3, Q("8.88 in")),
    Sketcher.Constraint("DistanceY", -1, 1, 1, 3, Q("0.625 in")),
])
sketch4.setExpression("Constraints[90]", "Params.sketch4_width")
sketch4.setExpression("Constraints[91]", "Params.sketch4_width2")
sketch4.setExpression("Constraints[92]", "Params.sketch4_radius")
sketch4.setExpression("Constraints[94]", "Params.sketch4_width3")
pocket2 = body.newObject("PartDesign::Pocket", "Pocket001")
pocket2.Profile = sketch4
pocket2.Type = "ThroughAll"

sketch5 = body.newObject("Sketcher::SketchObject", "Sketch004")
sketch5.AttachmentSupport = (doc.getObject("YZ_Plane"), [""])
sketch5.MapMode = "FlatFace"
sketch5.AttachmentOffset = App.Placement(App.Vector(0, 0, 14.5 * 25.4), App.Rotation())
sketch5.addGeometry([
    Part.LineSegment(App.Vector(-119, 21, 0), App.Vector(-73, 67, 0)),
    Part.LineSegment(App.Vector(-73, 67, 0), App.Vector(-73, 83, 0)),
    Part.LineSegment(App.Vector(-73, 83, 0), App.Vector(-119, 83, 0)),
    Part.LineSegment(App.Vector(-119, 83, 0), App.Vector(-119, 21, 0)),
    Part.LineSegment(App.Vector(73, 83, 0), App.Vector(73, 67, 0)),
    Part.LineSegment(App.Vector(73, 67, 0), App.Vector(119, 21, 0)),
    Part.LineSegment(App.Vector(119, 21, 0), App.Vector(119, 83, 0)),
    Part.LineSegment(App.Vector(119, 83, 0), App.Vector(73, 83, 0)),
], False)
sketch5.addConstraint([
    Sketcher.Constraint("Coincident", 0, 2, 1, 1),
    Sketcher.Constraint("Coincident", 1, 2, 2, 1),
    Sketcher.Constraint("Coincident", 2, 2, 3, 1),
    Sketcher.Constraint("Coincident", 3, 2, 0, 1),
    Sketcher.Constraint("Coincident", 4, 2, 5, 1),
    Sketcher.Constraint("Coincident", 5, 2, 6, 1),
    Sketcher.Constraint("Coincident", 6, 2, 7, 1),
    Sketcher.Constraint("Coincident", 7, 2, 4, 1),
    Sketcher.Constraint("Vertical", 1),
    Sketcher.Constraint("Horizontal", 2),
    Sketcher.Constraint("Vertical", 3),
    Sketcher.Constraint("Vertical", 4),
    Sketcher.Constraint("Vertical", 6),
    Sketcher.Constraint("Horizontal", 7),
    Sketcher.Constraint("Symmetric", 0, 2, 4, 2, -2),
    Sketcher.Constraint("Symmetric", 3, 2, 5, 2, -2),
    Sketcher.Constraint("Perpendicular", 0, 5),
    Sketcher.Constraint("Horizontal", 2, 2, 6, 2),
    Sketcher.Constraint("DistanceX", 0, 2, -1, 1, Q("2.88 in")),
    Sketcher.Constraint("DistanceY", -1, 1, 0, 2, Q("2.625 in")),
    Sketcher.Constraint("Distance", 0, Q("65.13734 mm")),
    Sketcher.Constraint("DistanceY", 1, 1, 1, 2, Q("16.070112 mm")),
])
pocket3 = body.newObject("PartDesign::Pocket", "Pocket002")
pocket3.Profile = sketch5
pocket3.Type = "ThroughAll"
body2 = doc.addObject("PartDesign::Body", "Body001")

sketch6 = body2.newObject("Sketcher::SketchObject", "Sketch005")
sketch6.AttachmentSupport = (doc.getObject("YZ_Plane001"), [""])
sketch6.MapMode = "FlatFace"
sketch6.AttachmentOffset = App.Placement(App.Vector(0, 0, -14.5 * 25.4), App.Rotation())
sketch6.addGeometry([
    Part.LineSegment(App.Vector(25, 79, 0), App.Vector(25, -22, 0)),
    Part.LineSegment(App.Vector(25, -22, 0), App.Vector(-25, -22, 0)),
    Part.LineSegment(App.Vector(-25, -22, 0), App.Vector(-25, 79, 0)),
    Part.LineSegment(App.Vector(-25, 79, 0), App.Vector(25, 79, 0)),
], False)
sketch6.addConstraint([
    Sketcher.Constraint("Coincident", 0, 2, 1, 1),
    Sketcher.Constraint("Coincident", 1, 2, 2, 1),
    Sketcher.Constraint("Coincident", 2, 2, 3, 1),
    Sketcher.Constraint("Coincident", 3, 2, 0, 1),
    Sketcher.Constraint("Vertical", 0),
    Sketcher.Constraint("Horizontal", 1),
    Sketcher.Constraint("Vertical", 2),
    Sketcher.Constraint("Horizontal", 3),
    Sketcher.Constraint("DistanceX", 1, 2, 1, 1, Q("2 in")),
    Sketcher.Constraint("DistanceY", 0, 2, 0, 1, Q("4 in")),
    Sketcher.Constraint("DistanceX", -1, 1, 0, 2, Q("1 in")),
    Sketcher.Constraint("DistanceY", 0, 2, -1, 1, Q("0.875 in")),
])
sketch6.setExpression("Constraints[8]", "Params.sketch6_width")
sketch6.setExpression("Constraints[9]", "Params.sketch6_height")
pad2 = body2.newObject("PartDesign::Pad", "Pad001")
pad2.Profile = sketch6
pad2.setExpression("Length", "Params.pad2_length")
pad2.Reversed = True

sketch7 = body2.newObject("Sketcher::SketchObject", "Sketch006")
sketch7.AttachmentSupport = (doc.getObject("XY_Plane001"), [""])
sketch7.MapMode = "FlatFace"
sketch7.AttachmentOffset = App.Placement(App.Vector(0, 0, 3.125 * 25.4), App.Rotation())
sketch7.addGeometry([
    Part.LineSegment(App.Vector(-457.2, -21.4, 0), App.Vector(-457.2, -25.4, 0)),
    Part.LineSegment(App.Vector(-457.2, -25.4, 0), App.Vector(-378, -25.4, 0)),
    Part.LineSegment(App.Vector(-378, -25.4, 0), App.Vector(-378, -21.4, 0)),
    Part.LineSegment(App.Vector(-378, -21.4, 0), App.Vector(-457.2, -21.4, 0)),
    Part.LineSegment(App.Vector(-457.2, 25.4, 0), App.Vector(-457.2, 21.4, 0)),
    Part.LineSegment(App.Vector(-457.2, 21.4, 0), App.Vector(-378, 21.4, 0)),
    Part.LineSegment(App.Vector(-378, 21.4, 0), App.Vector(-378, 25.4, 0)),
    Part.LineSegment(App.Vector(-378, 25.4, 0), App.Vector(-457.2, 25.4, 0)),
], False)
sketch7.addConstraint([
    Sketcher.Constraint("Coincident", 0, 2, 1, 1),
    Sketcher.Constraint("Coincident", 1, 2, 2, 1),
    Sketcher.Constraint("Coincident", 2, 2, 3, 1),
    Sketcher.Constraint("Coincident", 3, 2, 0, 1),
    Sketcher.Constraint("Coincident", 4, 2, 5, 1),
    Sketcher.Constraint("Coincident", 5, 2, 6, 1),
    Sketcher.Constraint("Coincident", 6, 2, 7, 1),
    Sketcher.Constraint("Coincident", 7, 2, 4, 1),
    Sketcher.Constraint("Vertical", 0),
    Sketcher.Constraint("Horizontal", 1),
    Sketcher.Constraint("Vertical", 2),
    Sketcher.Constraint("Horizontal", 3),
    Sketcher.Constraint("Vertical", 4),
    Sketcher.Constraint("Horizontal", 5),
    Sketcher.Constraint("Vertical", 6),
    Sketcher.Constraint("Horizontal", 7),
    Sketcher.Constraint("Symmetric", 3, 2, 4, 2, -1),
    Sketcher.Constraint("Symmetric", 1, 2, 6, 2, -1),
    Sketcher.Constraint("DistanceX", 0, 2, -1, 1, Q("18 in")),
    Sketcher.Constraint("DistanceY", 0, 2, -1, 1, Q("1 in")),
    Sketcher.Constraint("DistanceX", 1, 1, 1, 2, Q("3.12 in")),
    Sketcher.Constraint("DistanceY", 0, 2, 0, 1, Q("0.156 in")),
])
sketch7.setExpression("Constraints[20]", "Params.sketch7_width")
sketch7.setExpression("Constraints[21]", "Params.sketch7_height")
pocket4 = body2.newObject("PartDesign::Pocket", "Pocket003")
pocket4.Profile = sketch7
pocket4.Type = "ThroughAll"

sketch8 = body2.newObject("Sketcher::SketchObject", "Sketch007")
sketch8.AttachmentSupport = (doc.getObject("XZ_Plane001"), [""])
sketch8.MapMode = "FlatFace"
sketch8.AttachmentOffset = App.Placement(App.Vector(0, 0, -0.844 * 25.4), App.Rotation())
sketch8.addGeometry(Part.Circle(App.Vector(-419, 41, 0), App.Vector(0, 0, 1), 24), False)
sketch8.addConstraint([
    Sketcher.Constraint("Diameter", 0, Q("1.88 in")),
    Sketcher.Constraint("DistanceX", 0, 3, -1, 1, Q("16.5 in")),
    Sketcher.Constraint("DistanceY", -1, 1, 0, 3, Q("1.625 in")),
])
sketch8.setExpression("Constraints[0]", "Params.sketch8_diameter")
pocket5 = body2.newObject("PartDesign::Pocket", "Pocket004")
pocket5.Profile = sketch8
pocket5.Type = "ThroughAll"
pocket5.Reversed = True

sketch9 = body2.newObject("Sketcher::SketchObject", "Sketch008")
sketch9.AttachmentSupport = (doc.getObject("XZ_Plane001"), [""])
sketch9.MapMode = "FlatFace"
sketch9.AttachmentOffset = App.Placement(App.Vector(0, 0, -0.844 * 25.4), App.Rotation())
sketch9.addGeometry([
    Part.ArcOfCircle(Part.Circle(App.Vector(-419, 41, 0), App.Vector(0, 0, 1), 38), math.radians(90), math.radians(222)),
    Part.LineSegment(App.Vector(-447, 16, 0), App.Vector(-413, -22, 0)),
    Part.LineSegment(App.Vector(-413, -22, 0), App.Vector(-413, -38, 0)),
    Part.LineSegment(App.Vector(-413, -38, 0), App.Vector(-486, -38, 0)),
    Part.LineSegment(App.Vector(-486, -38, 0), App.Vector(-486, 100, 0)),
    Part.LineSegment(App.Vector(-486, 100, 0), App.Vector(-419, 100, 0)),
    Part.LineSegment(App.Vector(-419, 100, 0), App.Vector(-419, 79, 0)),
], False)
sketch9.addConstraint([
    Sketcher.Constraint("Tangent", 0, 2, 1, 1),
    Sketcher.Constraint("Coincident", 1, 2, 2, 1),
    Sketcher.Constraint("Coincident", 2, 2, 3, 1),
    Sketcher.Constraint("Coincident", 3, 2, 4, 1),
    Sketcher.Constraint("Coincident", 4, 2, 5, 1),
    Sketcher.Constraint("Coincident", 5, 2, 6, 1),
    Sketcher.Constraint("Coincident", 6, 2, 0, 1),
    Sketcher.Constraint("Vertical", 2),
    Sketcher.Constraint("Horizontal", 3),
    Sketcher.Constraint("Vertical", 4),
    Sketcher.Constraint("Horizontal", 5),
    Sketcher.Constraint("Vertical", 6),
    Sketcher.Constraint("Vertical", 0, 3, 5, 2),
    Sketcher.Constraint("Radius", 0, Q("1.5 in")),
    Sketcher.Constraint("DistanceY", 1, 2, 6, 2, Q("4 in")),
    Sketcher.Constraint("DistanceX", 0, 3, -1, 1, Q("16.5 in")),
    Sketcher.Constraint("DistanceX", 1, 2, -1, 1, Q("16.25 in")),
    Sketcher.Constraint("DistanceY", -1, 1, 0, 3, Q("1.625 in")),
    Sketcher.Constraint("DistanceY", 2, 2, 0, 2, Q("53.165898 mm")),
    Sketcher.Constraint("DistanceX", 3, 2, 3, 1, Q("73.702013 mm")),
    Sketcher.Constraint("DistanceY", 4, 1, 4, 2, Q("137.254733 mm")),
])
sketch9.setExpression("Constraints[13]", "Params.sketch9_radius")
pocket6 = body2.newObject("PartDesign::Pocket", "Pocket005")
pocket6.Profile = sketch9
pocket6.Type = "ThroughAll"
pocket6.Reversed = True

doc.recompute()
